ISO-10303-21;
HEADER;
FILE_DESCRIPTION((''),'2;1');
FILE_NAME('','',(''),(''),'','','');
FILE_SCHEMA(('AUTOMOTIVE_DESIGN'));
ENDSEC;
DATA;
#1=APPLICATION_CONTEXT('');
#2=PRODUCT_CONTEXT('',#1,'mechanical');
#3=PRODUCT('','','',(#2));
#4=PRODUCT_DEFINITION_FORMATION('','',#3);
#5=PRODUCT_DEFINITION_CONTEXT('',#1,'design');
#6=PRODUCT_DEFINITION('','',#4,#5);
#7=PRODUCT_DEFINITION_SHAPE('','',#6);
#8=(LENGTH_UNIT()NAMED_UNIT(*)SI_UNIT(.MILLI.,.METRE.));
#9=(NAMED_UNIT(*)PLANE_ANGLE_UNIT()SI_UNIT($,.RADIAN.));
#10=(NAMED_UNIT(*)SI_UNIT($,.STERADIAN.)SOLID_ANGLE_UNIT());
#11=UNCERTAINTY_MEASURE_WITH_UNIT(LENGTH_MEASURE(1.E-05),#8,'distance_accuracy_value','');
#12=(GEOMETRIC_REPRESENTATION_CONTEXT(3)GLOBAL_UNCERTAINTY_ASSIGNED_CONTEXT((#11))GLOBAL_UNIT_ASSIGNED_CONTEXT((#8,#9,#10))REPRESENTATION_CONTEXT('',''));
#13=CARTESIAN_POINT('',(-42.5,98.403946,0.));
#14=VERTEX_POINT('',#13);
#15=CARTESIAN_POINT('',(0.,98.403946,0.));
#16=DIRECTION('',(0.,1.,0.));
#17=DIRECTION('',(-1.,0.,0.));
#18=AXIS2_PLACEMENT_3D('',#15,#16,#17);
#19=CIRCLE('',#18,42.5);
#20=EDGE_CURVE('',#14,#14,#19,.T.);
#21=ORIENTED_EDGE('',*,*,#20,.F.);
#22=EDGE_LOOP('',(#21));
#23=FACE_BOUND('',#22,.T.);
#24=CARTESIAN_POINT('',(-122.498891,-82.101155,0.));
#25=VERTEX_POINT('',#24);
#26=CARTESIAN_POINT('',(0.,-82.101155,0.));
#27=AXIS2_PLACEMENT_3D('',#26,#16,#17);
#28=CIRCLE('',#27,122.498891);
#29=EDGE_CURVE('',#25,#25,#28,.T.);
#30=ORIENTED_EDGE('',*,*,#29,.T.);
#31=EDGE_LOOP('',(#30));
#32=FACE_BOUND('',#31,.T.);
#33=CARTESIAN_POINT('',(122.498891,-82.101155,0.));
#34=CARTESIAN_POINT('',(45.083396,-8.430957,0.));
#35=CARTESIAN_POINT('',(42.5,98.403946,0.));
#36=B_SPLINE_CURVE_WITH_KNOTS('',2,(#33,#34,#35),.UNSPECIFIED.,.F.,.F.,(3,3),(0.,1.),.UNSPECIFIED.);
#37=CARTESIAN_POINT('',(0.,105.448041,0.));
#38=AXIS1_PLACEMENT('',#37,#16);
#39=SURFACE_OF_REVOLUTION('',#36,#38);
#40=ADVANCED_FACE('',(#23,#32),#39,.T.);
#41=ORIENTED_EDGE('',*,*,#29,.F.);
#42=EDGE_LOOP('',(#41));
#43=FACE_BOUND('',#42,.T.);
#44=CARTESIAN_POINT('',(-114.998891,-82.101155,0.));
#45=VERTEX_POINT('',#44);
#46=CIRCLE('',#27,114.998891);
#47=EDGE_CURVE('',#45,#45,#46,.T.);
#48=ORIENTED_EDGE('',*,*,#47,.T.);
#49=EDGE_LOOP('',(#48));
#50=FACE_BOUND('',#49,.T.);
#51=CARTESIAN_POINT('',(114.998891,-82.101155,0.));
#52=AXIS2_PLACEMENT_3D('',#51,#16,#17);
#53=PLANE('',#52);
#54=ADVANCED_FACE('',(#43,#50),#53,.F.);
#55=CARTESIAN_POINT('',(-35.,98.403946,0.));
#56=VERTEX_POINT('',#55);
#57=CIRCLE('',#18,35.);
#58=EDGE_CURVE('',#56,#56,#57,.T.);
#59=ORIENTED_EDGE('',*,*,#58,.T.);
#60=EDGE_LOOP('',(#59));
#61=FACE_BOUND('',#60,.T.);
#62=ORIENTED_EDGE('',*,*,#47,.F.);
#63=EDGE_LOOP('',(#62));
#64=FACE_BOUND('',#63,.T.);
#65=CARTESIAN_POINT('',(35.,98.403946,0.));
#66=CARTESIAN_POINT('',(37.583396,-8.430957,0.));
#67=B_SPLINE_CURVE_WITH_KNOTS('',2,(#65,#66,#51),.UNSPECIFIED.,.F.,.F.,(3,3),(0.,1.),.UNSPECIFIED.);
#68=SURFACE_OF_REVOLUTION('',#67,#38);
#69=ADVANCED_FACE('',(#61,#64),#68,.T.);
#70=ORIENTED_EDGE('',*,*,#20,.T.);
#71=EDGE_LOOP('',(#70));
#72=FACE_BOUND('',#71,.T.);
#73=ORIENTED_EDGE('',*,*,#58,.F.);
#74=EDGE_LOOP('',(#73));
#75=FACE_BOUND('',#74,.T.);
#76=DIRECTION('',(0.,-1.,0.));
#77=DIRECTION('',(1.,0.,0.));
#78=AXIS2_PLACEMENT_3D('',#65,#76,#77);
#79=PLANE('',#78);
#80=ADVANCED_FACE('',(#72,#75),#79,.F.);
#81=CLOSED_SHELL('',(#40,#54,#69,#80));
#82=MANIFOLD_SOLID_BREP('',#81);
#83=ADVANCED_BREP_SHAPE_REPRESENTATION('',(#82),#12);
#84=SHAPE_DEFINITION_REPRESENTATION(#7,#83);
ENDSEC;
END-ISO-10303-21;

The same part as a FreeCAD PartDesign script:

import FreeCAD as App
import Part
import Sketcher

V = App.Vector

doc = App.newDocument("Part")
body = doc.addObject("PartDesign::Body", "Body")

# Sketch on XY plane
sketch1 = doc.addObject("Sketcher::SketchObject", "Sketch")
body.addObject(sketch1)
sketch1.AttachmentSupport = (doc.XY_Plane, [""])
sketch1.MapMode = "FlatFace"
sketch1.addGeometry([
    Part.LineSegment(V(42.5, 98.403946, 0), V(35, 98.403946, 0)),
    Part.BSplineCurve([V(35, 98.403946, 0), V(37.583396, -8.430957, 0), V(114.998891, -82.101155, 0)], [3, 3], [0, 1], False, 2, [1, 1, 1], False),
    Part.LineSegment(V(114.998891, -82.101155, 0), V(122.498891, -82.101155, 0)),
    Part.BSplineCurve([V(42.5, 98.403946, 0), V(45.083396, -8.430957, 0), V(122.498891, -82.101155, 0)], [3, 3], [0, 1], False, 2, [1, 1, 1], False),
], False)
sketch1.addConstraint([
    Sketcher.Constraint("Block", 1),
    Sketcher.Constraint("Block", 3),
    Sketcher.Constraint("Coincident", 0, 2, 1, 1),
    Sketcher.Constraint("Coincident", 1, 2, 2, 1),
    Sketcher.Constraint("Coincident", 2, 2, 3, 2),
    Sketcher.Constraint("Coincident", 3, 1, 0, 1),
])
revolution = doc.addObject("PartDesign::Revolution", "Revolution")
body.addObject(revolution)
revolution.Profile = sketch1
revolution.ReferenceAxis = (sketch1, ["V_Axis"])
revolution.Angle = 360

doc.recompute()
